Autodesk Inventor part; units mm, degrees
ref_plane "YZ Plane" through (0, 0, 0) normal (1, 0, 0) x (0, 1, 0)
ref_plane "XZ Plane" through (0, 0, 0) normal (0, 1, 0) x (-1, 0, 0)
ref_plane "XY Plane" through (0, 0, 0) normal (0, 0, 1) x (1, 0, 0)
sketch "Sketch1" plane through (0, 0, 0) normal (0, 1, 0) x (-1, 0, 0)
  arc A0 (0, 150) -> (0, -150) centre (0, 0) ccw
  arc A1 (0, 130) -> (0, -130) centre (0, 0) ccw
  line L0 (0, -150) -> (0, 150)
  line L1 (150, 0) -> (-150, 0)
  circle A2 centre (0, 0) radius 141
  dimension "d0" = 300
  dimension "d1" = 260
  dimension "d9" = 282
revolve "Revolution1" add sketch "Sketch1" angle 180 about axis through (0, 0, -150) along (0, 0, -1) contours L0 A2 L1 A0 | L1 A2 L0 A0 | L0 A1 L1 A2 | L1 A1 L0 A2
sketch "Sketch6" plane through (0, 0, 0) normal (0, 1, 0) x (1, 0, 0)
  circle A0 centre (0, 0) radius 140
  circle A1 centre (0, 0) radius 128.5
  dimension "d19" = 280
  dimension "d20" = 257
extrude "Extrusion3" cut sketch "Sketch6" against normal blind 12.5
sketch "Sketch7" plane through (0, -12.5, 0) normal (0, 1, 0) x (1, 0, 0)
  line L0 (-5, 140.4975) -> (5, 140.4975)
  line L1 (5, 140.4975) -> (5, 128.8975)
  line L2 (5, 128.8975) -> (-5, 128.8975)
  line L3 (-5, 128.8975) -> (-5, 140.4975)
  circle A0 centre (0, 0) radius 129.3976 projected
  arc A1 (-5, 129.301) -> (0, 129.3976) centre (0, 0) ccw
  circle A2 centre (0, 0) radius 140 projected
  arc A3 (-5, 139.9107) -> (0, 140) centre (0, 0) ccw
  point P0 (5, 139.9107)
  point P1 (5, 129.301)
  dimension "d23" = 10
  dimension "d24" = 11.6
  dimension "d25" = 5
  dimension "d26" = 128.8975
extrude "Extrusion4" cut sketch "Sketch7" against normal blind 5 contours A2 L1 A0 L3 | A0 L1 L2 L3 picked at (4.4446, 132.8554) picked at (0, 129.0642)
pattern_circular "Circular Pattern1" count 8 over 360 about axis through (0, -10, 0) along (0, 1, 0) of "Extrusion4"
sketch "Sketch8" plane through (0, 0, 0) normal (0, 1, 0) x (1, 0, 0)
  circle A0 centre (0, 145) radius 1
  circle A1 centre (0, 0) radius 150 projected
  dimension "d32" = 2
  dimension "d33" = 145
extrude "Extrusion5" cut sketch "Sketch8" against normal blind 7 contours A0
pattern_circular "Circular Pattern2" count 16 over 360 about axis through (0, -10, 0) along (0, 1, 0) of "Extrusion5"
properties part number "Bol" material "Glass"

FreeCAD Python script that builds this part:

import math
import FreeCAD as App
import Part
import Sketcher

doc = App.newDocument("Part")
body = doc.addObject("PartDesign::Body", "Body")

# Sketch on XZ plane
sketch1 = body.newObject("Sketcher::SketchObject", "Sketch")
sketch1.AttachmentSupport = (doc.getObject("XZ_Plane"), [""])
sketch1.MapMode = "FlatFace"
sketch1.addGeometry(Part.ArcOfCircle(Part.Circle(App.Vector(0, 0, 0), App.Vector(0, 0, 1), 150), math.radians(-90), math.radians(90)), False)
sketch1.addGeometry(Part.LineSegment(App.Vector(0, -150, 0), App.Vector(0, -130, 0)), False)
sketch1.addGeometry(Part.ArcOfCircle(Part.Circle(App.Vector(0, 0, 0), App.Vector(0, 0, 1), 130), math.radians(-90), math.radians(90)), False)
sketch1.addGeometry(Part.LineSegment(App.Vector(0, 130, 0), App.Vector(0, 150, 0)), False)
sketch1.addConstraint(Sketcher.Constraint("Coincident", 0, 1, 1, 1))
sketch1.addConstraint(Sketcher.Constraint("Coincident", 1, 2, 2, 1))
sketch1.addConstraint(Sketcher.Constraint("Coincident", 2, 2, 3, 1))
sketch1.addConstraint(Sketcher.Constraint("Coincident", 3, 2, 0, 2))
sketch1.addConstraint(Sketcher.Constraint("Vertical", 1))
sketch1.addConstraint(Sketcher.Constraint("Vertical", 3))
sketch1.addConstraint(Sketcher.Constraint("Coincident", 0, 3, -1, 1))
sketch1.addConstraint(Sketcher.Constraint("Coincident", 2, 3, -1, 1))
sketch1.addConstraint(Sketcher.Constraint("PointOnObject", 0, 1, -2))
sketch1.addConstraint(Sketcher.Constraint("PointOnObject", 2, 2, -2))
sketch1.addConstraint(Sketcher.Constraint("Radius", 0, 150.0))
sketch1.addConstraint(Sketcher.Constraint("Radius", 2, 130.0))
revolution = body.newObject("PartDesign::Revolution", "Revolution")
revolution.Profile = sketch1
revolution.ReferenceAxis = (sketch1, ["V_Axis"])
revolution.Angle = 180
revolution.Reversed = True

# Sketch on XZ plane
sketch2 = body.newObject("Sketcher::SketchObject", "Sketch001")
sketch2.AttachmentSupport = (doc.getObject("XZ_Plane"), [""])
sketch2.MapMode = "FlatFace"
sketch2.addGeometry(Part.Circle(App.Vector(0, 0, 0), App.Vector(0, 0, 1), 140), False)
sketch2.addGeometry(Part.Circle(App.Vector(0, 0, 0), App.Vector(0, 0, 1), 128), False)
sketch2.addConstraint(Sketcher.Constraint("Coincident", 0, 3, -1, 1))
sketch2.addConstraint(Sketcher.Constraint("Coincident", 1, 3, -1, 1))
sketch2.addConstraint(Sketcher.Constraint("Diameter", 0, 280.0))
sketch2.addConstraint(Sketcher.Constraint("Diameter", 1, 257.0))
pocket1 = body.newObject("PartDesign::Pocket", "Pocket")
pocket1.Profile = sketch2
pocket1.Length = 12.5
pocket1.Reversed = True

# Sketch on XZ plane
sketch3 = body.newObject("Sketcher::SketchObject", "Sketch002")
sketch3.AttachmentSupport = (doc.getObject("XZ_Plane"), [""])
sketch3.MapMode = "FlatFace"
sketch3.AttachmentOffset = App.Placement(App.Vector(0, 0, 12.5), App.Rotation())
sketch3.addGeometry(Part.LineSegment(App.Vector(-5, -140, 0), App.Vector(-5, -129, 0)), False)
sketch3.addGeometry(Part.LineSegment(App.Vector(-5, -129, 0), App.Vector(5, -129, 0)), False)
sketch3.addGeometry(Part.LineSegment(App.Vector(5, -129, 0), App.Vector(5, -140, 0)), False)
sketch3.addGeometry(Part.ArcOfCircle(Part.Circle(App.Vector(0, 0, 0), App.Vector(0, 0, 1), 140), math.radians(-92.05), math.radians(-87.95)), False)
sketch3.addConstraint(Sketcher.Constraint("Coincident", 0, 2, 1, 1))
sketch3.addConstraint(Sketcher.Constraint("Coincident", 1, 2, 2, 1))
sketch3.addConstraint(Sketcher.Constraint("Coincident", 2, 2, 3, 2))
sketch3.addConstraint(Sketcher.Constraint("Coincident", 3, 1, 0, 1))
sketch3.addConstraint(Sketcher.Constraint("Vertical", 0))
sketch3.addConstraint(Sketcher.Constraint("Horizontal", 1))
sketch3.addConstraint(Sketcher.Constraint("Vertical", 2))
sketch3.addConstraint(Sketcher.Constraint("Coincident", 3, 3, -1, 1))
sketch3.addConstraint(Sketcher.Constraint("Horizontal", 2, 2, 3, 1))
sketch3.addConstraint(Sketcher.Constraint("DistanceX", 1, 1, 1, 2, 10.0))
sketch3.addConstraint(Sketcher.Constraint("Radius", 3, 140.0))
sketch3.addConstraint(Sketcher.Constraint("DistanceY", 0, 2, -1, 1, 128.8975))
pocket2 = body.newObject("PartDesign::Pocket", "Pocket001")
pocket2.Profile = sketch3
pocket2.Length = 5
pocket2.Reversed = True
doc.recompute()

polarpattern = body.newObject("PartDesign::PolarPattern", "PolarPattern")
polarpattern.Originals = [pocket2]
polarpattern.Axis = (doc.getObject("Y_Axis"), [""])
polarpattern.Angle = 360
polarpattern.Occurrences = 8
body.Tip = polarpattern

# Sketch on XZ plane
sketch4 = body.newObject("Sketcher::SketchObject", "Sketch003")
sketch4.AttachmentSupport = (doc.getObject("XZ_Plane"), [""])
sketch4.MapMode = "FlatFace"
sketch4.addGeometry(Part.Circle(App.Vector(0, -145, 0), App.Vector(0, 0, 1), 1), False)
sketch4.addConstraint(Sketcher.Constraint("PointOnObject", 0, 3, -2))
sketch4.addConstraint(Sketcher.Constraint("Diameter", 0, 2.0))
sketch4.addConstraint(Sketcher.Constraint("DistanceY", 0, 3, -1, 1, 145.0))
pocket3 = body.newObject("PartDesign::Pocket", "Pocket002")
pocket3.Profile = sketch4
pocket3.Length = 7
pocket3.Reversed = True
doc.recompute()

polarpattern2 = body.newObject("PartDesign::PolarPattern", "PolarPattern001")
polarpattern2.Originals = [pocket3]
polarpattern2.Axis = (doc.getObject("Y_Axis"), [""])
polarpattern2.Angle = 360
polarpattern2.Occurrences = 16
body.Tip = polarpattern2

doc.recompute()
